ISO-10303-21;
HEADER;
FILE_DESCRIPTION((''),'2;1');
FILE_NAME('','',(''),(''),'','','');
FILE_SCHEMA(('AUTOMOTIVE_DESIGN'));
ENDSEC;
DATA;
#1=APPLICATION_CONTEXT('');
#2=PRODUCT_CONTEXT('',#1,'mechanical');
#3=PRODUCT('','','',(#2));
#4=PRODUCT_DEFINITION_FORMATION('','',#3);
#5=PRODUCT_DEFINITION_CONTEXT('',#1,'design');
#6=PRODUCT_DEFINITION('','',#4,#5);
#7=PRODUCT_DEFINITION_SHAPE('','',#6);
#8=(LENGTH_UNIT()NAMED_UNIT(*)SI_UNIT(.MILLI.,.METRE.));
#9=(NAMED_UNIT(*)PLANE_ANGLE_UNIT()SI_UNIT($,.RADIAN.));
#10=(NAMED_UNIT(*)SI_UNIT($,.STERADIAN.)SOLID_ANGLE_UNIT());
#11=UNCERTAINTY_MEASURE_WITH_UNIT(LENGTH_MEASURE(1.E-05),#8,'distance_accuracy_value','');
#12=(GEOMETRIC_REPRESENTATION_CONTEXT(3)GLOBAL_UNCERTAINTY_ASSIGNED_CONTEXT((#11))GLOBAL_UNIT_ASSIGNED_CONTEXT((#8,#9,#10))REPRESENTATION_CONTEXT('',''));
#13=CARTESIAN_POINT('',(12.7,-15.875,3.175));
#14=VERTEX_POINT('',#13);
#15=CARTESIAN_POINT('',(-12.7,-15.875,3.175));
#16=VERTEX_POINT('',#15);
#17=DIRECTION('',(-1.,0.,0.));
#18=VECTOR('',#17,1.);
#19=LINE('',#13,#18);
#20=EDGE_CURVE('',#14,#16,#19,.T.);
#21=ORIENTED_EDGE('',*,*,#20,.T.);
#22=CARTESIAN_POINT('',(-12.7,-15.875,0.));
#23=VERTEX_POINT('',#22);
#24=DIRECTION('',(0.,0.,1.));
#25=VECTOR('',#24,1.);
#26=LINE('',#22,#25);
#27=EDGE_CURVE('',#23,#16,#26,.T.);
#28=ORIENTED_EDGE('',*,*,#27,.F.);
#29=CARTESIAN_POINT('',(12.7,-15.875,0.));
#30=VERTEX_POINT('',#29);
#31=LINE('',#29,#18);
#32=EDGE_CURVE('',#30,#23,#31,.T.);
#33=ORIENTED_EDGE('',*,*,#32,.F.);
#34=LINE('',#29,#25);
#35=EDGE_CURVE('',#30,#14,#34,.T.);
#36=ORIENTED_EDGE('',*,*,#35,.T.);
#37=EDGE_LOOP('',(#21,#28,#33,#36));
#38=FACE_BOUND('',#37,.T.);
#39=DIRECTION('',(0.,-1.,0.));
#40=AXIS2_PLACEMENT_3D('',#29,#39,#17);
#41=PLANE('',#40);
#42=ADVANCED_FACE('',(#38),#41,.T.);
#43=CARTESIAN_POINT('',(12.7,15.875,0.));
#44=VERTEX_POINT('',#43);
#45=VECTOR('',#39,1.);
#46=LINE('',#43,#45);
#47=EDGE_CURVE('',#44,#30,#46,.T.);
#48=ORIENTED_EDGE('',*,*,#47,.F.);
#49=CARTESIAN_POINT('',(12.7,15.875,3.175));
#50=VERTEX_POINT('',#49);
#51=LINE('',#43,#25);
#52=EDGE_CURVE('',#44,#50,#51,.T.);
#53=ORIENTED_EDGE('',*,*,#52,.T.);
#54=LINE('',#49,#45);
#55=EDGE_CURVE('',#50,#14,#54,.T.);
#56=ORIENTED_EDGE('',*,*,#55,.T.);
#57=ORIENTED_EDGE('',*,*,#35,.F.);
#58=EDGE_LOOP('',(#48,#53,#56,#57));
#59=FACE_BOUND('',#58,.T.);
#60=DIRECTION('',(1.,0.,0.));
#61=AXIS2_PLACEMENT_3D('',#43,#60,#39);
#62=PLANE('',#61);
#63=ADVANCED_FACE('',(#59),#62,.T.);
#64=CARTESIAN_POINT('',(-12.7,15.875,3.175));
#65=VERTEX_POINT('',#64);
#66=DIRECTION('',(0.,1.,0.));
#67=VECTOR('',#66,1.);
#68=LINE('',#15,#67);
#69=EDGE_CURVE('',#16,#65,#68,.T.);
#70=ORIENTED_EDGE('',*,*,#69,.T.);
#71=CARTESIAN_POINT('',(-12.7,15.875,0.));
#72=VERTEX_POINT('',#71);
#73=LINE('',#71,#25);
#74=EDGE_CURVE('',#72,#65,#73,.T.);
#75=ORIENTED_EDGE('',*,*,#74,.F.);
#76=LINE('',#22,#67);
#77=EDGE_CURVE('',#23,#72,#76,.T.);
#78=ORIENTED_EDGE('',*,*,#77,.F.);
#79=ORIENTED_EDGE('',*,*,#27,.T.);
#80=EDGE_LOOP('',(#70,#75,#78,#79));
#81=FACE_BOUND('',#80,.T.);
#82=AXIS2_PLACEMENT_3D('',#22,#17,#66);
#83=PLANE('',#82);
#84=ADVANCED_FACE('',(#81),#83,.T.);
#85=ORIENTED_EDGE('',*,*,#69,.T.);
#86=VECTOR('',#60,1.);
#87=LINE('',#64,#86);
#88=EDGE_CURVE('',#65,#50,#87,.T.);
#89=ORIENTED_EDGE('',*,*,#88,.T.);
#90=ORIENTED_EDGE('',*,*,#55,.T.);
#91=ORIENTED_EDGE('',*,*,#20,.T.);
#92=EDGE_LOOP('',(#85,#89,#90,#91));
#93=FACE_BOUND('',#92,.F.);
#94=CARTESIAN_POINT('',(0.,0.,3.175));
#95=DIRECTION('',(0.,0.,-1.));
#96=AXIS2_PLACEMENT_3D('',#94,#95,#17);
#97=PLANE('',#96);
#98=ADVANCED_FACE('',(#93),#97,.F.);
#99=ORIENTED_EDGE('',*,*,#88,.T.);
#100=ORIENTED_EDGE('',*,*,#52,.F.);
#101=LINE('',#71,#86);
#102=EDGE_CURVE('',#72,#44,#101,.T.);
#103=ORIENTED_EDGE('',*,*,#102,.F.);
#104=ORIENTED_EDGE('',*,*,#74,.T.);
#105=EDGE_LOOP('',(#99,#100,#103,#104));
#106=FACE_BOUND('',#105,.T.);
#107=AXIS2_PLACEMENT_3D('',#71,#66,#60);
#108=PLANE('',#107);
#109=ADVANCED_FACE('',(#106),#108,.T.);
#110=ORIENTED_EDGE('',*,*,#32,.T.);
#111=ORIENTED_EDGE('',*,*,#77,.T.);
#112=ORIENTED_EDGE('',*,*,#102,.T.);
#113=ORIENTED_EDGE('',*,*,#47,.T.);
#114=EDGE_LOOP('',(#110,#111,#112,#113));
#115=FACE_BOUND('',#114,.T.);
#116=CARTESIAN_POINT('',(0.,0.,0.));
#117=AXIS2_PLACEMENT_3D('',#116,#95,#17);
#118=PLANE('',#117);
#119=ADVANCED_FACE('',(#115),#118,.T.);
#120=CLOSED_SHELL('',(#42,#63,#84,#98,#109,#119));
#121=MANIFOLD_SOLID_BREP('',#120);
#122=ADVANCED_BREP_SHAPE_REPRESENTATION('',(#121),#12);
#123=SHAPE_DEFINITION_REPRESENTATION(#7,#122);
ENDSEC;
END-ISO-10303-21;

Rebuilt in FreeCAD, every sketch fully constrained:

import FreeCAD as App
import Part
import Sketcher
Q = App.Units.Quantity


def add_polygon(sketch, points):
    """Adds a closed chain of lines whose ends are joined by coincident constraints."""
    first, n = sketch.GeometryCount, len(points)
    for a, b in zip(points, points[1:] + points[:1]):
        sketch.addGeometry(Part.LineSegment(App.Vector(*a, 0), App.Vector(*b, 0)), False)
    for i in range(n):
        sketch.addConstraint(Sketcher.Constraint("Coincident", first + i, 2, first + (i + 1) % n, 1))

doc = App.newDocument("Part")
params = doc.addObject("Spreadsheet::Sheet", "Params")
for row, (alias, value) in enumerate([
    ("sketch1_height", "1.25 in"),
    ("pad1_length", "0.125 in"),
], start=1):
    params.set(f"A{row}", alias)
    params.set(f"B{row}", "=" + value)
    params.setAlias(f"B{row}", alias)

body = doc.addObject("PartDesign::Body", "Body")

# Sketch on XY plane
sketch1 = doc.addObject("Sketcher::SketchObject", "Sketch")
body.addObject(sketch1)
sketch1.AttachmentSupport = (doc.XY_Plane, [""])
sketch1.MapMode = "FlatFace"
add_polygon(sketch1, [(12.7, 15.875), (-12.7, 15.875), (-12.7, -15.875), (12.7, -15.875)])  # lines 0-3
sketch1.addConstraint(Sketcher.Constraint("Horizontal", 0))
sketch1.addConstraint(Sketcher.Constraint("Vertical", 1))
sketch1.addConstraint(Sketcher.Constraint("Horizontal", 2))
sketch1.addConstraint(Sketcher.Constraint("Vertical", 3))
sketch1.addConstraint(Sketcher.Constraint("Symmetric", 0, 2, 2, 2, -1, 1))
sketch1.addConstraint(Sketcher.Constraint("DistanceX", 0, 2, -1, 1, Q("0.5 in")))
sketch1.addConstraint(Sketcher.Constraint("DistanceY", 1, 2, 1, 1, Q("1.25 in")))
sketch1.setExpression("Constraints[10]", "Params.sketch1_height")
pad1 = doc.addObject("PartDesign::Pad", "Pad")
body.addObject(pad1)
pad1.Profile = sketch1
pad1.setExpression("Length", "Params.pad1_length")

doc.recompute()
